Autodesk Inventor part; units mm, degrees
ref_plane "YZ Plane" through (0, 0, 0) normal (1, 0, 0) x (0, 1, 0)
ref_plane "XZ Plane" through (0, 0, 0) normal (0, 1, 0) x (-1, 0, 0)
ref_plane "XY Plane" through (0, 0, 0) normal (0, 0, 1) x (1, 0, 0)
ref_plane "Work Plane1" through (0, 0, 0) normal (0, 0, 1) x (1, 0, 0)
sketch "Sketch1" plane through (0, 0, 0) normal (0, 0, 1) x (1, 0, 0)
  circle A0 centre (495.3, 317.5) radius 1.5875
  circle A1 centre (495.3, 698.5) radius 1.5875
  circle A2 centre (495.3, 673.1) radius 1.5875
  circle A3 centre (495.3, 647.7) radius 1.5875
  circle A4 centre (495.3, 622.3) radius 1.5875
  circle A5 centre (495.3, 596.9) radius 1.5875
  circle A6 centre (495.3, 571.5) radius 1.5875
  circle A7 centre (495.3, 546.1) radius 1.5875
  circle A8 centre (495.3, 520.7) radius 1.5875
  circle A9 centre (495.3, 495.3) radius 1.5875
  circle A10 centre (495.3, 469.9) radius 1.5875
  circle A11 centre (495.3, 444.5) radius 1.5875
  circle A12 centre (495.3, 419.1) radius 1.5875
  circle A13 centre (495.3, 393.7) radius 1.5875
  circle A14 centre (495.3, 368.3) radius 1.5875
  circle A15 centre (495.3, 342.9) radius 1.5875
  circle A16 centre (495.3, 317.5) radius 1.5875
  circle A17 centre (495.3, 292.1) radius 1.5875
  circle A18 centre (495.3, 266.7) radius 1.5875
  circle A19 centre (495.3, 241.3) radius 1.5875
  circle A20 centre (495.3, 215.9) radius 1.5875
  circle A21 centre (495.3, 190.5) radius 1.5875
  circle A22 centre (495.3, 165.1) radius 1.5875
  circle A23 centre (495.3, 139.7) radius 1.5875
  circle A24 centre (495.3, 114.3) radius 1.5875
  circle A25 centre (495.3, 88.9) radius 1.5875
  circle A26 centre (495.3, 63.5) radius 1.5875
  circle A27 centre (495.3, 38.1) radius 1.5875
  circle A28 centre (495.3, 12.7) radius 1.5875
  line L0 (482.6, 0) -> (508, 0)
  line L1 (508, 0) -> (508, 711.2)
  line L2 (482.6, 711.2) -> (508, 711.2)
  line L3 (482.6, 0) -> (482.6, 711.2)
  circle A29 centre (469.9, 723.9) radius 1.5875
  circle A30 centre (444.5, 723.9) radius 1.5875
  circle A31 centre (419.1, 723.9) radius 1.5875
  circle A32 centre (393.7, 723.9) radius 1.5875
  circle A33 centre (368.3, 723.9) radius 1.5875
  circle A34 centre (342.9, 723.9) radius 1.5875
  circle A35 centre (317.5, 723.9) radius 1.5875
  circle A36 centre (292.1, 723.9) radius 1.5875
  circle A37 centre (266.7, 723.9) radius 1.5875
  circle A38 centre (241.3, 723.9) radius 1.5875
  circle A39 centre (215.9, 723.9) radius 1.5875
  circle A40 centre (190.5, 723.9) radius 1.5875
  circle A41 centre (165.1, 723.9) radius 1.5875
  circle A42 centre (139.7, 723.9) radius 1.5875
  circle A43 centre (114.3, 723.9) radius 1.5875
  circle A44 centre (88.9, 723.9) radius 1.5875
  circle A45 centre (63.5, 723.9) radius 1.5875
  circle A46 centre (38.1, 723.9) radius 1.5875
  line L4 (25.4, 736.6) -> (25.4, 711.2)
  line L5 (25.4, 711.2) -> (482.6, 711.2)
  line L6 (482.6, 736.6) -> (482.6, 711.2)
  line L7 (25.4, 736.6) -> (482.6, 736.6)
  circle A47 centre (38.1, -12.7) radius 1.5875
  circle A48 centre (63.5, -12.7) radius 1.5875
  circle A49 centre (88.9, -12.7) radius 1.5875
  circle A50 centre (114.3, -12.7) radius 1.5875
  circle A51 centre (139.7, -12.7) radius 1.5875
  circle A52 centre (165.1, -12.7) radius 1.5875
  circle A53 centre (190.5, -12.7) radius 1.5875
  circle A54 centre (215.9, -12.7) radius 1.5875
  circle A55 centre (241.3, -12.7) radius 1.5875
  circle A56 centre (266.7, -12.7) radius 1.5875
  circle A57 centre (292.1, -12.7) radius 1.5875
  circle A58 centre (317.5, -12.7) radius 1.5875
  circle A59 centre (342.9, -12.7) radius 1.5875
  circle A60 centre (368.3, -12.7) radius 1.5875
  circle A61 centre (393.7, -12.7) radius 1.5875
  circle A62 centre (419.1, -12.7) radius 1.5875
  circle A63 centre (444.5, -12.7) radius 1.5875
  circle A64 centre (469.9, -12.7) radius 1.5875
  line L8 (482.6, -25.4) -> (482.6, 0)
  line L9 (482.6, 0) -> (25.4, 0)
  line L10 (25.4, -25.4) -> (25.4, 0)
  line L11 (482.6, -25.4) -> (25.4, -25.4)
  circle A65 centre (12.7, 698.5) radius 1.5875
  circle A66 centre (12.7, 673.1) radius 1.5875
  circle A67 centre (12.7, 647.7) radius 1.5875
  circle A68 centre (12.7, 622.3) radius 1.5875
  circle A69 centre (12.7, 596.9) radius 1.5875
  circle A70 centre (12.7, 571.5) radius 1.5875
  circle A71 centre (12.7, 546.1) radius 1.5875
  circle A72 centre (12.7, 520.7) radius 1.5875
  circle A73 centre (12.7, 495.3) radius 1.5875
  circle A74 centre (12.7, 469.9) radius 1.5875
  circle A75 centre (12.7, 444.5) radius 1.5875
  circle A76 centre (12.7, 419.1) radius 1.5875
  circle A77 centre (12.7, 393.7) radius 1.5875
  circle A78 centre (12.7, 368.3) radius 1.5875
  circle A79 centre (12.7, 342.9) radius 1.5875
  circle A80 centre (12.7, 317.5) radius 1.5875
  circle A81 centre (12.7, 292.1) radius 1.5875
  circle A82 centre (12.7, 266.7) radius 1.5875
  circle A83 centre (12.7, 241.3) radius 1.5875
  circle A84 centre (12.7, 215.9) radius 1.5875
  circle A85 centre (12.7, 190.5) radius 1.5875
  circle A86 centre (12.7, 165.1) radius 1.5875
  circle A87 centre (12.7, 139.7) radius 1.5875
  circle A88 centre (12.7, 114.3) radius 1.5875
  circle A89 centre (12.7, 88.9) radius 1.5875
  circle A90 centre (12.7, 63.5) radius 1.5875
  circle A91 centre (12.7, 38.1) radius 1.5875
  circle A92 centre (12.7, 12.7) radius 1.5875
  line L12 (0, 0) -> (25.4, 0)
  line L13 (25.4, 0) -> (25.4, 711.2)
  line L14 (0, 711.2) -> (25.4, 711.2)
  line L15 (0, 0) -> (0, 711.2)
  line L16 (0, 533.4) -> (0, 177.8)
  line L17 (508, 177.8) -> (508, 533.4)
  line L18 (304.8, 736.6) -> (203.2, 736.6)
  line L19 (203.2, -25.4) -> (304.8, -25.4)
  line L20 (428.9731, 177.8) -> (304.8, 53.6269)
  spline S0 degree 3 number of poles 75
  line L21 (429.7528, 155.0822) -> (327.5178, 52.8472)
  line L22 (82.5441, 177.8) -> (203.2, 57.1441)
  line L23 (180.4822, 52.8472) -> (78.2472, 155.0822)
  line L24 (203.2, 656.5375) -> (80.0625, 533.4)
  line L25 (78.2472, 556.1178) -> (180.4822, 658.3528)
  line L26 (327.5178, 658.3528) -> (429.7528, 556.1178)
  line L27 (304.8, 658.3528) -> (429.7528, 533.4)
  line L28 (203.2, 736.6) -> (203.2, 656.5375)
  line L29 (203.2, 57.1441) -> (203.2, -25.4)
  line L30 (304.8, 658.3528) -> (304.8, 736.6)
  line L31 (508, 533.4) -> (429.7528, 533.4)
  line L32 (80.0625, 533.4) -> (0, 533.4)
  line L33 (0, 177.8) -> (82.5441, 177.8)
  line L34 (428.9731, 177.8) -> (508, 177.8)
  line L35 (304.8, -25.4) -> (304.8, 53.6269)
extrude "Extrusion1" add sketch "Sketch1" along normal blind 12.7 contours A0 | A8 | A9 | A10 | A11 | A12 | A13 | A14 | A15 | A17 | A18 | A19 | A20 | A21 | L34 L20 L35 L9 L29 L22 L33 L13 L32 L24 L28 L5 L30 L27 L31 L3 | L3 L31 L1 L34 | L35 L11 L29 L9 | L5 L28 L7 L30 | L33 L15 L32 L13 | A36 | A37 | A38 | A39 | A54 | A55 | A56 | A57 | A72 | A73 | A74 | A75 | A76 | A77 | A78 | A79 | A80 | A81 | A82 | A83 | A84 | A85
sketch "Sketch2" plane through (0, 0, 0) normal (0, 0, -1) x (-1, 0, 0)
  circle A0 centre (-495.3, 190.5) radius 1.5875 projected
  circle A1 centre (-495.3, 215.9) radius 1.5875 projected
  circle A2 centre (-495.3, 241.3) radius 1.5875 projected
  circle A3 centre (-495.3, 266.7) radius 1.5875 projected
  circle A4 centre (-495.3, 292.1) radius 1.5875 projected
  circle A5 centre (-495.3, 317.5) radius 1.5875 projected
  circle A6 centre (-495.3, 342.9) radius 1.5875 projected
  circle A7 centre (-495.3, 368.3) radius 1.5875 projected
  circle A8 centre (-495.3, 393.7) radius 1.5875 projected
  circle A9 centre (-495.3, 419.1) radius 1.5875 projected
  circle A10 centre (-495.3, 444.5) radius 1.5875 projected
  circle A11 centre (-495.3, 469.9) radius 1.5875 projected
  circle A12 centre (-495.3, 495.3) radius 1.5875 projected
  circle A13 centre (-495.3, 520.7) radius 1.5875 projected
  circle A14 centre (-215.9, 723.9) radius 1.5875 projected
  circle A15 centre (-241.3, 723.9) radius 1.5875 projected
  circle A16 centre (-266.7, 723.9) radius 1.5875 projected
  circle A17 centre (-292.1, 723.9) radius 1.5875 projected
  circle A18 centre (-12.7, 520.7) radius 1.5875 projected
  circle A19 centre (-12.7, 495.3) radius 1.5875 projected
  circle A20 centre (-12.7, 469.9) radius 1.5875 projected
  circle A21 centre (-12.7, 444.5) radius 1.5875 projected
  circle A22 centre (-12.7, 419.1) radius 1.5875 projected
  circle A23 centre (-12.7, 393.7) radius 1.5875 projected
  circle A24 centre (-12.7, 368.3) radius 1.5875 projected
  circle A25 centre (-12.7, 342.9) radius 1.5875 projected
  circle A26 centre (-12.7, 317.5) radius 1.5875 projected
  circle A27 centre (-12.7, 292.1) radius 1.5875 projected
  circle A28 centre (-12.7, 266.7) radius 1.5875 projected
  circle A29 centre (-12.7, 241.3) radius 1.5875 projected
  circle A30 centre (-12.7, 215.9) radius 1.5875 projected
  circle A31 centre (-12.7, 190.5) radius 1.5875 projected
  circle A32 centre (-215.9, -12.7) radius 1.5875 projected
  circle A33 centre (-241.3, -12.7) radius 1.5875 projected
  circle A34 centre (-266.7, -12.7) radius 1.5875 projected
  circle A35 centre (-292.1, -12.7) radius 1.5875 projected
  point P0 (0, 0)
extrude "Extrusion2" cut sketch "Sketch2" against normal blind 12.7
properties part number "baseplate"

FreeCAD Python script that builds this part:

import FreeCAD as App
import Part
import Sketcher

V = App.Vector
Q = App.Units.Quantity

doc = App.newDocument("Part")
body = doc.addObject("PartDesign::Body", "Body")

sketch1 = body.newObject("Sketcher::SketchObject", "Sketch")
sketch1.AttachmentSupport = (doc.getObject("XY_Plane"), [""])
sketch1.MapMode = "FlatFace"
sketch1.addGeometry([
    Part.LineSegment(V(508, 533, 0), V(430, 533, 0)),
    Part.LineSegment(V(430, 533, 0), V(305, 658, 0)),
    Part.LineSegment(V(305, 658, 0), V(305, 737, 0)),
    Part.LineSegment(V(305, 737, 0), V(203, 737, 0)),
    Part.LineSegment(V(203, 737, 0), V(203, 657, 0)),
    Part.LineSegment(V(203, 657, 0), V(80, 533, 0)),
    Part.LineSegment(V(80, 533, 0), V(0, 533, 0)),
    Part.LineSegment(V(0, 533, 0), V(0, 178, 0)),
    Part.LineSegment(V(0, 178, 0), V(83, 178, 0)),
    Part.LineSegment(V(83, 178, 0), V(203, 57, 0)),
    Part.LineSegment(V(203, 57, 0), V(203, -25, 0)),
    Part.LineSegment(V(203, -25, 0), V(305, -25, 0)),
    Part.LineSegment(V(305, -25, 0), V(305, 54, 0)),
    Part.LineSegment(V(305, 54, 0), V(429, 178, 0)),
    Part.LineSegment(V(429, 178, 0), V(508, 178, 0)),
    Part.LineSegment(V(508, 178, 0), V(508, 533, 0)),
], False)
sketch1.addConstraint([
    Sketcher.Constraint("Coincident", 0, 2, 1, 1),
    Sketcher.Constraint("Coincident", 1, 2, 2, 1),
    Sketcher.Constraint("Coincident", 2, 2, 3, 1),
    Sketcher.Constraint("Coincident", 3, 2, 4, 1),
    Sketcher.Constraint("Coincident", 4, 2, 5, 1),
    Sketcher.Constraint("Coincident", 5, 2, 6, 1),
    Sketcher.Constraint("Coincident", 6, 2, 7, 1),
    Sketcher.Constraint("Coincident", 7, 2, 8, 1),
    Sketcher.Constraint("Coincident", 8, 2, 9, 1),
    Sketcher.Constraint("Coincident", 9, 2, 10, 1),
    Sketcher.Constraint("Coincident", 10, 2, 11, 1),
    Sketcher.Constraint("Coincident", 11, 2, 12, 1),
    Sketcher.Constraint("Coincident", 12, 2, 13, 1),
    Sketcher.Constraint("Coincident", 13, 2, 14, 1),
    Sketcher.Constraint("Coincident", 14, 2, 15, 1),
    Sketcher.Constraint("Coincident", 15, 2, 0, 1),
    Sketcher.Constraint("Horizontal", 0),
    Sketcher.Constraint("Vertical", 2),
    Sketcher.Constraint("Horizontal", 3),
    Sketcher.Constraint("Vertical", 4),
    Sketcher.Constraint("Horizontal", 6),
    Sketcher.Constraint("Vertical", 7),
    Sketcher.Constraint("Horizontal", 8),
    Sketcher.Constraint("Vertical", 10),
    Sketcher.Constraint("Horizontal", 11),
    Sketcher.Constraint("Vertical", 12),
    Sketcher.Constraint("Horizontal", 14),
    Sketcher.Constraint("Vertical", 15),
    Sketcher.Constraint("PointOnObject", 6, 2, -2),
    Sketcher.Constraint("Perpendicular", 1, 5),
    Sketcher.Constraint("Perpendicular", 5, 9),
    Sketcher.Constraint("Perpendicular", 9, 13),
    Sketcher.Constraint("Horizontal", 0, 2, 5, 2),
    Sketcher.Constraint("Horizontal", 8, 2, 13, 2),
    Sketcher.Constraint("Vertical", 4, 2, 9, 2),
    Sketcher.Constraint("Vertical", 2, 2, 11, 2),
    Sketcher.Constraint("Equal", 0, 2),
    Sketcher.Constraint("Equal", 6, 4),
    Sketcher.Constraint("Equal", 8, 10),
    Sketcher.Constraint("Equal", 14, 12),
    Sketcher.Constraint("DistanceX", 3, 2, 3, 1, Q("4 in")),
    Sketcher.Constraint("DistanceY", 7, 2, 7, 1, Q("14 in")),
    Sketcher.Constraint("DistanceY", -1, 1, 0, 2, Q("21 in")),
    Sketcher.Constraint("DistanceX", -1, 1, 1, 2, Q("12 in")),
    Sketcher.Constraint("DistanceX", 0, 2, 0, 1, Q("3.0806 in")),
    Sketcher.Constraint("DistanceX", 14, 1, 14, 2, Q("3.1113 in")),
    Sketcher.Constraint("DistanceX", 6, 2, 6, 1, Q("80.0625 mm")),
    Sketcher.Constraint("DistanceX", 8, 1, 8, 2, Q("82.544 mm")),
])
pad1 = body.newObject("PartDesign::Pad", "Pad")
pad1.Profile = sketch1
pad1.Length = Q("0.5 in")

sketch2 = body.newObject("Sketcher::SketchObject", "Sketch001")
sketch2.AttachmentSupport = (doc.getObject("XY_Plane"), [""])
sketch2.MapMode = "FlatFace"
sketch2.addGeometry([
    Part.Circle(V(495.3, 190.5, 0), V(0, 0, 1), 1.6),
    Part.Circle(V(495.3, 215.9, 0), V(0, 0, 1), 1.6),
    Part.Circle(V(495.3, 241.3, 0), V(0, 0, 1), 1.6),
    Part.Circle(V(495.3, 266.7, 0), V(0, 0, 1), 1.6),
    Part.Circle(V(495.3, 292.1, 0), V(0, 0, 1), 1.6),
    Part.Circle(V(495.3, 317.5, 0), V(0, 0, 1), 1.6),
    Part.Circle(V(495.3, 342.9, 0), V(0, 0, 1), 1.6),
    Part.Circle(V(495.3, 368.3, 0), V(0, 0, 1), 1.6),
    Part.Circle(V(495.3, 393.7, 0), V(0, 0, 1), 1.6),
    Part.Circle(V(495.3, 419.1, 0), V(0, 0, 1), 1.6),
    Part.Circle(V(495.3, 444.5, 0), V(0, 0, 1), 1.6),
    Part.Circle(V(495.3, 469.9, 0), V(0, 0, 1), 1.6),
    Part.Circle(V(495.3, 495.3, 0), V(0, 0, 1), 1.6),
    Part.Circle(V(495.3, 520.7, 0), V(0, 0, 1), 1.6),
    Part.Circle(V(215.9, 723.9, 0), V(0, 0, 1), 1.6),
    Part.Circle(V(241.3, 723.9, 0), V(0, 0, 1), 1.6),
    Part.Circle(V(266.7, 723.9, 0), V(0, 0, 1), 1.6),
    Part.Circle(V(292.1, 723.9, 0), V(0, 0, 1), 1.6),
    Part.Circle(V(12.7, 520.7, 0), V(0, 0, 1), 1.6),
    Part.Circle(V(12.7, 495.3, 0), V(0, 0, 1), 1.6),
    Part.Circle(V(12.7, 469.9, 0), V(0, 0, 1), 1.6),
    Part.Circle(V(12.7, 444.5, 0), V(0, 0, 1), 1.6),
    Part.Circle(V(12.7, 419.1, 0), V(0, 0, 1), 1.6),
    Part.Circle(V(12.7, 393.7, 0), V(0, 0, 1), 1.6),
    Part.Circle(V(12.7, 368.3, 0), V(0, 0, 1), 1.6),
    Part.Circle(V(12.7, 342.9, 0), V(0, 0, 1), 1.6),
    Part.Circle(V(12.7, 317.5, 0), V(0, 0, 1), 1.6),
    Part.Circle(V(12.7, 292.1, 0), V(0, 0, 1), 1.6),
    Part.Circle(V(12.7, 266.7, 0), V(0, 0, 1), 1.6),
    Part.Circle(V(12.7, 241.3, 0), V(0, 0, 1), 1.6),
    Part.Circle(V(12.7, 215.9, 0), V(0, 0, 1), 1.6),
    Part.Circle(V(12.7, 190.5, 0), V(0, 0, 1), 1.6),
    Part.Circle(V(215.9, -12.7, 0), V(0, 0, 1), 1.6),
    Part.Circle(V(241.3, -12.7, 0), V(0, 0, 1), 1.6),
    Part.Circle(V(266.7, -12.7, 0), V(0, 0, 1), 1.6),
    Part.Circle(V(292.1, -12.7, 0), V(0, 0, 1), 1.6),
], False)
sketch2.addConstraint([
    Sketcher.Constraint("Equal", 0, 1),
    Sketcher.Constraint("Equal", 1, 2),
    Sketcher.Constraint("Equal", 2, 3),
    Sketcher.Constraint("Equal", 3, 4),
    Sketcher.Constraint("Equal", 4, 5),
    Sketcher.Constraint("Equal", 5, 6),
    Sketcher.Constraint("Equal", 6, 7),
    Sketcher.Constraint("Equal", 7, 8),
    Sketcher.Constraint("Equal", 8, 9),
    Sketcher.Constraint("Equal", 9, 10),
    Sketcher.Constraint("Equal", 10, 11),
    Sketcher.Constraint("Equal", 11, 12),
    Sketcher.Constraint("Equal", 12, 13),
    Sketcher.Constraint("Equal", 13, 14),
    Sketcher.Constraint("Equal", 14, 15),
    Sketcher.Constraint("Equal", 15, 16),
    Sketcher.Constraint("Equal", 16, 17),
    Sketcher.Constraint("Equal", 17, 18),
    Sketcher.Constraint("Equal", 18, 19),
    Sketcher.Constraint("Equal", 19, 20),
    Sketcher.Constraint("Equal", 20, 21),
    Sketcher.Constraint("Equal", 21, 22),
    Sketcher.Constraint("Equal", 22, 23),
    Sketcher.Constraint("Equal", 23, 24),
    Sketcher.Constraint("Equal", 24, 25),
    Sketcher.Constraint("Equal", 25, 26),
    Sketcher.Constraint("Equal", 26, 27),
    Sketcher.Constraint("Equal", 27, 28),
    Sketcher.Constraint("Equal", 28, 29),
    Sketcher.Constraint("Equal", 29, 30),
    Sketcher.Constraint("Equal", 30, 31),
    Sketcher.Constraint("Equal", 31, 32),
    Sketcher.Constraint("Equal", 32, 33),
    Sketcher.Constraint("Equal", 33, 34),
    Sketcher.Constraint("Equal", 34, 35),
    Sketcher.Constraint("Horizontal", 14, 3, 15, 3),
    Sketcher.Constraint("Horizontal", 15, 3, 16, 3),
    Sketcher.Constraint("Horizontal", 16, 3, 17, 3),
    Sketcher.Constraint("Horizontal", 13, 3, 18, 3),
    Sketcher.Constraint("Horizontal", 12, 3, 19, 3),
    Sketcher.Constraint("Horizontal", 11, 3, 20, 3),
    Sketcher.Constraint("Horizontal", 10, 3, 21, 3),
    Sketcher.Constraint("Horizontal", 9, 3, 22, 3),
    Sketcher.Constraint("Horizontal", 8, 3, 23, 3),
    Sketcher.Constraint("Horizontal", 7, 3, 24, 3),
    Sketcher.Constraint("Horizontal", 6, 3, 25, 3),
    Sketcher.Constraint("Horizontal", 5, 3, 26, 3),
    Sketcher.Constraint("Horizontal", 4, 3, 27, 3),
    Sketcher.Constraint("Horizontal", 3, 3, 28, 3),
    Sketcher.Constraint("Horizontal", 2, 3, 29, 3),
    Sketcher.Constraint("Horizontal", 1, 3, 30, 3),
    Sketcher.Constraint("Horizontal", 0, 3, 31, 3),
    Sketcher.Constraint("Horizontal", 32, 3, 33, 3),
    Sketcher.Constraint("Horizontal", 33, 3, 34, 3),
    Sketcher.Constraint("Horizontal", 34, 3, 35, 3),
    Sketcher.Constraint("Vertical", 0, 3, 1, 3),
    Sketcher.Constraint("Vertical", 1, 3, 2, 3),
    Sketcher.Constraint("Vertical", 2, 3, 3, 3),
    Sketcher.Constraint("Vertical", 3, 3, 4, 3),
    Sketcher.Constraint("Vertical", 4, 3, 5, 3),
    Sketcher.Constraint("Vertical", 5, 3, 6, 3),
    Sketcher.Constraint("Vertical", 6, 3, 7, 3),
    Sketcher.Constraint("Vertical", 7, 3, 8, 3),
    Sketcher.Constraint("Vertical", 8, 3, 9, 3),
    Sketcher.Constraint("Vertical", 9, 3, 10, 3),
    Sketcher.Constraint("Vertical", 10, 3, 11, 3),
    Sketcher.Constraint("Vertical", 11, 3, 12, 3),
    Sketcher.Constraint("Vertical", 12, 3, 13, 3),
    Sketcher.Constraint("Vertical", 18, 3, 19, 3),
    Sketcher.Constraint("Vertical", 19, 3, 20, 3),
    Sketcher.Constraint("Vertical", 20, 3, 21, 3),
    Sketcher.Constraint("Vertical", 21, 3, 22, 3),
    Sketcher.Constraint("Vertical", 22, 3, 23, 3),
    Sketcher.Constraint("Vertical", 23, 3, 24, 3),
    Sketcher.Constraint("Vertical", 24, 3, 25, 3),
    Sketcher.Constraint("Vertical", 25, 3, 26, 3),
    Sketcher.Constraint("Vertical", 26, 3, 27, 3),
    Sketcher.Constraint("Vertical", 27, 3, 28, 3),
    Sketcher.Constraint("Vertical", 28, 3, 29, 3),
    Sketcher.Constraint("Vertical", 29, 3, 30, 3),
    Sketcher.Constraint("Vertical", 30, 3, 31, 3),
    Sketcher.Constraint("Vertical", 14, 3, 32, 3),
    Sketcher.Constraint("Vertical", 15, 3, 33, 3),
    Sketcher.Constraint("Vertical", 16, 3, 34, 3),
    Sketcher.Constraint("Vertical", 17, 3, 35, 3),
    Sketcher.Constraint("Diameter", 0, Q("0.125 in")),
    Sketcher.Constraint("DistanceY", 0, 3, 1, 3, Q("1 in")),
    Sketcher.Constraint("DistanceY", 1, 3, 2, 3, Q("1 in")),
    Sketcher.Constraint("DistanceY", 2, 3, 3, 3, Q("1 in")),
    Sketcher.Constraint("DistanceY", 3, 3, 4, 3, Q("1 in")),
    Sketcher.Constraint("DistanceY", 4, 3, 5, 3, Q("1 in")),
    Sketcher.Constraint("DistanceY", 5, 3, 6, 3, Q("1 in")),
    Sketcher.Constraint("DistanceY", 6, 3, 7, 3, Q("1 in")),
    Sketcher.Constraint("DistanceY", 7, 3, 8, 3, Q("1 in")),
    Sketcher.Constraint("DistanceY", 8, 3, 9, 3, Q("1 in")),
    Sketcher.Constraint("DistanceY", 9, 3, 10, 3, Q("1 in")),
    Sketcher.Constraint("DistanceY", 10, 3, 11, 3, Q("1 in")),
    Sketcher.Constraint("DistanceY", 11, 3, 12, 3, Q("1 in")),
    Sketcher.Constraint("DistanceY", 12, 3, 13, 3, Q("1 in")),
    Sketcher.Constraint("DistanceX", 14, 3, 13, 3, Q("11 in")),
    Sketcher.Constraint("DistanceY", 13, 3, 14, 3, Q("8 in")),
    Sketcher.Constraint("DistanceX", 14, 3, 15, 3, Q("1 in")),
    Sketcher.Constraint("DistanceX", 15, 3, 16, 3, Q("1 in")),
    Sketcher.Constraint("DistanceX", 16, 3, 17, 3, Q("1 in")),
    Sketcher.Constraint("DistanceX", 18, 3, 14, 3, Q("8 in")),
    Sketcher.Constraint("DistanceY", 32, 3, 31, 3, Q("8 in")),
    Sketcher.Constraint("DistanceX", -1, 1, 0, 3, Q("19.5 in")),
    Sketcher.Constraint("DistanceY", -1, 1, 0, 3, Q("7.5 in")),
])
pocket1 = body.newObject("PartDesign::Pocket", "Pocket")
pocket1.Profile = sketch2
pocket1.Length = Q("0.5 in")
pocket1.Reversed = True

doc.recompute()
